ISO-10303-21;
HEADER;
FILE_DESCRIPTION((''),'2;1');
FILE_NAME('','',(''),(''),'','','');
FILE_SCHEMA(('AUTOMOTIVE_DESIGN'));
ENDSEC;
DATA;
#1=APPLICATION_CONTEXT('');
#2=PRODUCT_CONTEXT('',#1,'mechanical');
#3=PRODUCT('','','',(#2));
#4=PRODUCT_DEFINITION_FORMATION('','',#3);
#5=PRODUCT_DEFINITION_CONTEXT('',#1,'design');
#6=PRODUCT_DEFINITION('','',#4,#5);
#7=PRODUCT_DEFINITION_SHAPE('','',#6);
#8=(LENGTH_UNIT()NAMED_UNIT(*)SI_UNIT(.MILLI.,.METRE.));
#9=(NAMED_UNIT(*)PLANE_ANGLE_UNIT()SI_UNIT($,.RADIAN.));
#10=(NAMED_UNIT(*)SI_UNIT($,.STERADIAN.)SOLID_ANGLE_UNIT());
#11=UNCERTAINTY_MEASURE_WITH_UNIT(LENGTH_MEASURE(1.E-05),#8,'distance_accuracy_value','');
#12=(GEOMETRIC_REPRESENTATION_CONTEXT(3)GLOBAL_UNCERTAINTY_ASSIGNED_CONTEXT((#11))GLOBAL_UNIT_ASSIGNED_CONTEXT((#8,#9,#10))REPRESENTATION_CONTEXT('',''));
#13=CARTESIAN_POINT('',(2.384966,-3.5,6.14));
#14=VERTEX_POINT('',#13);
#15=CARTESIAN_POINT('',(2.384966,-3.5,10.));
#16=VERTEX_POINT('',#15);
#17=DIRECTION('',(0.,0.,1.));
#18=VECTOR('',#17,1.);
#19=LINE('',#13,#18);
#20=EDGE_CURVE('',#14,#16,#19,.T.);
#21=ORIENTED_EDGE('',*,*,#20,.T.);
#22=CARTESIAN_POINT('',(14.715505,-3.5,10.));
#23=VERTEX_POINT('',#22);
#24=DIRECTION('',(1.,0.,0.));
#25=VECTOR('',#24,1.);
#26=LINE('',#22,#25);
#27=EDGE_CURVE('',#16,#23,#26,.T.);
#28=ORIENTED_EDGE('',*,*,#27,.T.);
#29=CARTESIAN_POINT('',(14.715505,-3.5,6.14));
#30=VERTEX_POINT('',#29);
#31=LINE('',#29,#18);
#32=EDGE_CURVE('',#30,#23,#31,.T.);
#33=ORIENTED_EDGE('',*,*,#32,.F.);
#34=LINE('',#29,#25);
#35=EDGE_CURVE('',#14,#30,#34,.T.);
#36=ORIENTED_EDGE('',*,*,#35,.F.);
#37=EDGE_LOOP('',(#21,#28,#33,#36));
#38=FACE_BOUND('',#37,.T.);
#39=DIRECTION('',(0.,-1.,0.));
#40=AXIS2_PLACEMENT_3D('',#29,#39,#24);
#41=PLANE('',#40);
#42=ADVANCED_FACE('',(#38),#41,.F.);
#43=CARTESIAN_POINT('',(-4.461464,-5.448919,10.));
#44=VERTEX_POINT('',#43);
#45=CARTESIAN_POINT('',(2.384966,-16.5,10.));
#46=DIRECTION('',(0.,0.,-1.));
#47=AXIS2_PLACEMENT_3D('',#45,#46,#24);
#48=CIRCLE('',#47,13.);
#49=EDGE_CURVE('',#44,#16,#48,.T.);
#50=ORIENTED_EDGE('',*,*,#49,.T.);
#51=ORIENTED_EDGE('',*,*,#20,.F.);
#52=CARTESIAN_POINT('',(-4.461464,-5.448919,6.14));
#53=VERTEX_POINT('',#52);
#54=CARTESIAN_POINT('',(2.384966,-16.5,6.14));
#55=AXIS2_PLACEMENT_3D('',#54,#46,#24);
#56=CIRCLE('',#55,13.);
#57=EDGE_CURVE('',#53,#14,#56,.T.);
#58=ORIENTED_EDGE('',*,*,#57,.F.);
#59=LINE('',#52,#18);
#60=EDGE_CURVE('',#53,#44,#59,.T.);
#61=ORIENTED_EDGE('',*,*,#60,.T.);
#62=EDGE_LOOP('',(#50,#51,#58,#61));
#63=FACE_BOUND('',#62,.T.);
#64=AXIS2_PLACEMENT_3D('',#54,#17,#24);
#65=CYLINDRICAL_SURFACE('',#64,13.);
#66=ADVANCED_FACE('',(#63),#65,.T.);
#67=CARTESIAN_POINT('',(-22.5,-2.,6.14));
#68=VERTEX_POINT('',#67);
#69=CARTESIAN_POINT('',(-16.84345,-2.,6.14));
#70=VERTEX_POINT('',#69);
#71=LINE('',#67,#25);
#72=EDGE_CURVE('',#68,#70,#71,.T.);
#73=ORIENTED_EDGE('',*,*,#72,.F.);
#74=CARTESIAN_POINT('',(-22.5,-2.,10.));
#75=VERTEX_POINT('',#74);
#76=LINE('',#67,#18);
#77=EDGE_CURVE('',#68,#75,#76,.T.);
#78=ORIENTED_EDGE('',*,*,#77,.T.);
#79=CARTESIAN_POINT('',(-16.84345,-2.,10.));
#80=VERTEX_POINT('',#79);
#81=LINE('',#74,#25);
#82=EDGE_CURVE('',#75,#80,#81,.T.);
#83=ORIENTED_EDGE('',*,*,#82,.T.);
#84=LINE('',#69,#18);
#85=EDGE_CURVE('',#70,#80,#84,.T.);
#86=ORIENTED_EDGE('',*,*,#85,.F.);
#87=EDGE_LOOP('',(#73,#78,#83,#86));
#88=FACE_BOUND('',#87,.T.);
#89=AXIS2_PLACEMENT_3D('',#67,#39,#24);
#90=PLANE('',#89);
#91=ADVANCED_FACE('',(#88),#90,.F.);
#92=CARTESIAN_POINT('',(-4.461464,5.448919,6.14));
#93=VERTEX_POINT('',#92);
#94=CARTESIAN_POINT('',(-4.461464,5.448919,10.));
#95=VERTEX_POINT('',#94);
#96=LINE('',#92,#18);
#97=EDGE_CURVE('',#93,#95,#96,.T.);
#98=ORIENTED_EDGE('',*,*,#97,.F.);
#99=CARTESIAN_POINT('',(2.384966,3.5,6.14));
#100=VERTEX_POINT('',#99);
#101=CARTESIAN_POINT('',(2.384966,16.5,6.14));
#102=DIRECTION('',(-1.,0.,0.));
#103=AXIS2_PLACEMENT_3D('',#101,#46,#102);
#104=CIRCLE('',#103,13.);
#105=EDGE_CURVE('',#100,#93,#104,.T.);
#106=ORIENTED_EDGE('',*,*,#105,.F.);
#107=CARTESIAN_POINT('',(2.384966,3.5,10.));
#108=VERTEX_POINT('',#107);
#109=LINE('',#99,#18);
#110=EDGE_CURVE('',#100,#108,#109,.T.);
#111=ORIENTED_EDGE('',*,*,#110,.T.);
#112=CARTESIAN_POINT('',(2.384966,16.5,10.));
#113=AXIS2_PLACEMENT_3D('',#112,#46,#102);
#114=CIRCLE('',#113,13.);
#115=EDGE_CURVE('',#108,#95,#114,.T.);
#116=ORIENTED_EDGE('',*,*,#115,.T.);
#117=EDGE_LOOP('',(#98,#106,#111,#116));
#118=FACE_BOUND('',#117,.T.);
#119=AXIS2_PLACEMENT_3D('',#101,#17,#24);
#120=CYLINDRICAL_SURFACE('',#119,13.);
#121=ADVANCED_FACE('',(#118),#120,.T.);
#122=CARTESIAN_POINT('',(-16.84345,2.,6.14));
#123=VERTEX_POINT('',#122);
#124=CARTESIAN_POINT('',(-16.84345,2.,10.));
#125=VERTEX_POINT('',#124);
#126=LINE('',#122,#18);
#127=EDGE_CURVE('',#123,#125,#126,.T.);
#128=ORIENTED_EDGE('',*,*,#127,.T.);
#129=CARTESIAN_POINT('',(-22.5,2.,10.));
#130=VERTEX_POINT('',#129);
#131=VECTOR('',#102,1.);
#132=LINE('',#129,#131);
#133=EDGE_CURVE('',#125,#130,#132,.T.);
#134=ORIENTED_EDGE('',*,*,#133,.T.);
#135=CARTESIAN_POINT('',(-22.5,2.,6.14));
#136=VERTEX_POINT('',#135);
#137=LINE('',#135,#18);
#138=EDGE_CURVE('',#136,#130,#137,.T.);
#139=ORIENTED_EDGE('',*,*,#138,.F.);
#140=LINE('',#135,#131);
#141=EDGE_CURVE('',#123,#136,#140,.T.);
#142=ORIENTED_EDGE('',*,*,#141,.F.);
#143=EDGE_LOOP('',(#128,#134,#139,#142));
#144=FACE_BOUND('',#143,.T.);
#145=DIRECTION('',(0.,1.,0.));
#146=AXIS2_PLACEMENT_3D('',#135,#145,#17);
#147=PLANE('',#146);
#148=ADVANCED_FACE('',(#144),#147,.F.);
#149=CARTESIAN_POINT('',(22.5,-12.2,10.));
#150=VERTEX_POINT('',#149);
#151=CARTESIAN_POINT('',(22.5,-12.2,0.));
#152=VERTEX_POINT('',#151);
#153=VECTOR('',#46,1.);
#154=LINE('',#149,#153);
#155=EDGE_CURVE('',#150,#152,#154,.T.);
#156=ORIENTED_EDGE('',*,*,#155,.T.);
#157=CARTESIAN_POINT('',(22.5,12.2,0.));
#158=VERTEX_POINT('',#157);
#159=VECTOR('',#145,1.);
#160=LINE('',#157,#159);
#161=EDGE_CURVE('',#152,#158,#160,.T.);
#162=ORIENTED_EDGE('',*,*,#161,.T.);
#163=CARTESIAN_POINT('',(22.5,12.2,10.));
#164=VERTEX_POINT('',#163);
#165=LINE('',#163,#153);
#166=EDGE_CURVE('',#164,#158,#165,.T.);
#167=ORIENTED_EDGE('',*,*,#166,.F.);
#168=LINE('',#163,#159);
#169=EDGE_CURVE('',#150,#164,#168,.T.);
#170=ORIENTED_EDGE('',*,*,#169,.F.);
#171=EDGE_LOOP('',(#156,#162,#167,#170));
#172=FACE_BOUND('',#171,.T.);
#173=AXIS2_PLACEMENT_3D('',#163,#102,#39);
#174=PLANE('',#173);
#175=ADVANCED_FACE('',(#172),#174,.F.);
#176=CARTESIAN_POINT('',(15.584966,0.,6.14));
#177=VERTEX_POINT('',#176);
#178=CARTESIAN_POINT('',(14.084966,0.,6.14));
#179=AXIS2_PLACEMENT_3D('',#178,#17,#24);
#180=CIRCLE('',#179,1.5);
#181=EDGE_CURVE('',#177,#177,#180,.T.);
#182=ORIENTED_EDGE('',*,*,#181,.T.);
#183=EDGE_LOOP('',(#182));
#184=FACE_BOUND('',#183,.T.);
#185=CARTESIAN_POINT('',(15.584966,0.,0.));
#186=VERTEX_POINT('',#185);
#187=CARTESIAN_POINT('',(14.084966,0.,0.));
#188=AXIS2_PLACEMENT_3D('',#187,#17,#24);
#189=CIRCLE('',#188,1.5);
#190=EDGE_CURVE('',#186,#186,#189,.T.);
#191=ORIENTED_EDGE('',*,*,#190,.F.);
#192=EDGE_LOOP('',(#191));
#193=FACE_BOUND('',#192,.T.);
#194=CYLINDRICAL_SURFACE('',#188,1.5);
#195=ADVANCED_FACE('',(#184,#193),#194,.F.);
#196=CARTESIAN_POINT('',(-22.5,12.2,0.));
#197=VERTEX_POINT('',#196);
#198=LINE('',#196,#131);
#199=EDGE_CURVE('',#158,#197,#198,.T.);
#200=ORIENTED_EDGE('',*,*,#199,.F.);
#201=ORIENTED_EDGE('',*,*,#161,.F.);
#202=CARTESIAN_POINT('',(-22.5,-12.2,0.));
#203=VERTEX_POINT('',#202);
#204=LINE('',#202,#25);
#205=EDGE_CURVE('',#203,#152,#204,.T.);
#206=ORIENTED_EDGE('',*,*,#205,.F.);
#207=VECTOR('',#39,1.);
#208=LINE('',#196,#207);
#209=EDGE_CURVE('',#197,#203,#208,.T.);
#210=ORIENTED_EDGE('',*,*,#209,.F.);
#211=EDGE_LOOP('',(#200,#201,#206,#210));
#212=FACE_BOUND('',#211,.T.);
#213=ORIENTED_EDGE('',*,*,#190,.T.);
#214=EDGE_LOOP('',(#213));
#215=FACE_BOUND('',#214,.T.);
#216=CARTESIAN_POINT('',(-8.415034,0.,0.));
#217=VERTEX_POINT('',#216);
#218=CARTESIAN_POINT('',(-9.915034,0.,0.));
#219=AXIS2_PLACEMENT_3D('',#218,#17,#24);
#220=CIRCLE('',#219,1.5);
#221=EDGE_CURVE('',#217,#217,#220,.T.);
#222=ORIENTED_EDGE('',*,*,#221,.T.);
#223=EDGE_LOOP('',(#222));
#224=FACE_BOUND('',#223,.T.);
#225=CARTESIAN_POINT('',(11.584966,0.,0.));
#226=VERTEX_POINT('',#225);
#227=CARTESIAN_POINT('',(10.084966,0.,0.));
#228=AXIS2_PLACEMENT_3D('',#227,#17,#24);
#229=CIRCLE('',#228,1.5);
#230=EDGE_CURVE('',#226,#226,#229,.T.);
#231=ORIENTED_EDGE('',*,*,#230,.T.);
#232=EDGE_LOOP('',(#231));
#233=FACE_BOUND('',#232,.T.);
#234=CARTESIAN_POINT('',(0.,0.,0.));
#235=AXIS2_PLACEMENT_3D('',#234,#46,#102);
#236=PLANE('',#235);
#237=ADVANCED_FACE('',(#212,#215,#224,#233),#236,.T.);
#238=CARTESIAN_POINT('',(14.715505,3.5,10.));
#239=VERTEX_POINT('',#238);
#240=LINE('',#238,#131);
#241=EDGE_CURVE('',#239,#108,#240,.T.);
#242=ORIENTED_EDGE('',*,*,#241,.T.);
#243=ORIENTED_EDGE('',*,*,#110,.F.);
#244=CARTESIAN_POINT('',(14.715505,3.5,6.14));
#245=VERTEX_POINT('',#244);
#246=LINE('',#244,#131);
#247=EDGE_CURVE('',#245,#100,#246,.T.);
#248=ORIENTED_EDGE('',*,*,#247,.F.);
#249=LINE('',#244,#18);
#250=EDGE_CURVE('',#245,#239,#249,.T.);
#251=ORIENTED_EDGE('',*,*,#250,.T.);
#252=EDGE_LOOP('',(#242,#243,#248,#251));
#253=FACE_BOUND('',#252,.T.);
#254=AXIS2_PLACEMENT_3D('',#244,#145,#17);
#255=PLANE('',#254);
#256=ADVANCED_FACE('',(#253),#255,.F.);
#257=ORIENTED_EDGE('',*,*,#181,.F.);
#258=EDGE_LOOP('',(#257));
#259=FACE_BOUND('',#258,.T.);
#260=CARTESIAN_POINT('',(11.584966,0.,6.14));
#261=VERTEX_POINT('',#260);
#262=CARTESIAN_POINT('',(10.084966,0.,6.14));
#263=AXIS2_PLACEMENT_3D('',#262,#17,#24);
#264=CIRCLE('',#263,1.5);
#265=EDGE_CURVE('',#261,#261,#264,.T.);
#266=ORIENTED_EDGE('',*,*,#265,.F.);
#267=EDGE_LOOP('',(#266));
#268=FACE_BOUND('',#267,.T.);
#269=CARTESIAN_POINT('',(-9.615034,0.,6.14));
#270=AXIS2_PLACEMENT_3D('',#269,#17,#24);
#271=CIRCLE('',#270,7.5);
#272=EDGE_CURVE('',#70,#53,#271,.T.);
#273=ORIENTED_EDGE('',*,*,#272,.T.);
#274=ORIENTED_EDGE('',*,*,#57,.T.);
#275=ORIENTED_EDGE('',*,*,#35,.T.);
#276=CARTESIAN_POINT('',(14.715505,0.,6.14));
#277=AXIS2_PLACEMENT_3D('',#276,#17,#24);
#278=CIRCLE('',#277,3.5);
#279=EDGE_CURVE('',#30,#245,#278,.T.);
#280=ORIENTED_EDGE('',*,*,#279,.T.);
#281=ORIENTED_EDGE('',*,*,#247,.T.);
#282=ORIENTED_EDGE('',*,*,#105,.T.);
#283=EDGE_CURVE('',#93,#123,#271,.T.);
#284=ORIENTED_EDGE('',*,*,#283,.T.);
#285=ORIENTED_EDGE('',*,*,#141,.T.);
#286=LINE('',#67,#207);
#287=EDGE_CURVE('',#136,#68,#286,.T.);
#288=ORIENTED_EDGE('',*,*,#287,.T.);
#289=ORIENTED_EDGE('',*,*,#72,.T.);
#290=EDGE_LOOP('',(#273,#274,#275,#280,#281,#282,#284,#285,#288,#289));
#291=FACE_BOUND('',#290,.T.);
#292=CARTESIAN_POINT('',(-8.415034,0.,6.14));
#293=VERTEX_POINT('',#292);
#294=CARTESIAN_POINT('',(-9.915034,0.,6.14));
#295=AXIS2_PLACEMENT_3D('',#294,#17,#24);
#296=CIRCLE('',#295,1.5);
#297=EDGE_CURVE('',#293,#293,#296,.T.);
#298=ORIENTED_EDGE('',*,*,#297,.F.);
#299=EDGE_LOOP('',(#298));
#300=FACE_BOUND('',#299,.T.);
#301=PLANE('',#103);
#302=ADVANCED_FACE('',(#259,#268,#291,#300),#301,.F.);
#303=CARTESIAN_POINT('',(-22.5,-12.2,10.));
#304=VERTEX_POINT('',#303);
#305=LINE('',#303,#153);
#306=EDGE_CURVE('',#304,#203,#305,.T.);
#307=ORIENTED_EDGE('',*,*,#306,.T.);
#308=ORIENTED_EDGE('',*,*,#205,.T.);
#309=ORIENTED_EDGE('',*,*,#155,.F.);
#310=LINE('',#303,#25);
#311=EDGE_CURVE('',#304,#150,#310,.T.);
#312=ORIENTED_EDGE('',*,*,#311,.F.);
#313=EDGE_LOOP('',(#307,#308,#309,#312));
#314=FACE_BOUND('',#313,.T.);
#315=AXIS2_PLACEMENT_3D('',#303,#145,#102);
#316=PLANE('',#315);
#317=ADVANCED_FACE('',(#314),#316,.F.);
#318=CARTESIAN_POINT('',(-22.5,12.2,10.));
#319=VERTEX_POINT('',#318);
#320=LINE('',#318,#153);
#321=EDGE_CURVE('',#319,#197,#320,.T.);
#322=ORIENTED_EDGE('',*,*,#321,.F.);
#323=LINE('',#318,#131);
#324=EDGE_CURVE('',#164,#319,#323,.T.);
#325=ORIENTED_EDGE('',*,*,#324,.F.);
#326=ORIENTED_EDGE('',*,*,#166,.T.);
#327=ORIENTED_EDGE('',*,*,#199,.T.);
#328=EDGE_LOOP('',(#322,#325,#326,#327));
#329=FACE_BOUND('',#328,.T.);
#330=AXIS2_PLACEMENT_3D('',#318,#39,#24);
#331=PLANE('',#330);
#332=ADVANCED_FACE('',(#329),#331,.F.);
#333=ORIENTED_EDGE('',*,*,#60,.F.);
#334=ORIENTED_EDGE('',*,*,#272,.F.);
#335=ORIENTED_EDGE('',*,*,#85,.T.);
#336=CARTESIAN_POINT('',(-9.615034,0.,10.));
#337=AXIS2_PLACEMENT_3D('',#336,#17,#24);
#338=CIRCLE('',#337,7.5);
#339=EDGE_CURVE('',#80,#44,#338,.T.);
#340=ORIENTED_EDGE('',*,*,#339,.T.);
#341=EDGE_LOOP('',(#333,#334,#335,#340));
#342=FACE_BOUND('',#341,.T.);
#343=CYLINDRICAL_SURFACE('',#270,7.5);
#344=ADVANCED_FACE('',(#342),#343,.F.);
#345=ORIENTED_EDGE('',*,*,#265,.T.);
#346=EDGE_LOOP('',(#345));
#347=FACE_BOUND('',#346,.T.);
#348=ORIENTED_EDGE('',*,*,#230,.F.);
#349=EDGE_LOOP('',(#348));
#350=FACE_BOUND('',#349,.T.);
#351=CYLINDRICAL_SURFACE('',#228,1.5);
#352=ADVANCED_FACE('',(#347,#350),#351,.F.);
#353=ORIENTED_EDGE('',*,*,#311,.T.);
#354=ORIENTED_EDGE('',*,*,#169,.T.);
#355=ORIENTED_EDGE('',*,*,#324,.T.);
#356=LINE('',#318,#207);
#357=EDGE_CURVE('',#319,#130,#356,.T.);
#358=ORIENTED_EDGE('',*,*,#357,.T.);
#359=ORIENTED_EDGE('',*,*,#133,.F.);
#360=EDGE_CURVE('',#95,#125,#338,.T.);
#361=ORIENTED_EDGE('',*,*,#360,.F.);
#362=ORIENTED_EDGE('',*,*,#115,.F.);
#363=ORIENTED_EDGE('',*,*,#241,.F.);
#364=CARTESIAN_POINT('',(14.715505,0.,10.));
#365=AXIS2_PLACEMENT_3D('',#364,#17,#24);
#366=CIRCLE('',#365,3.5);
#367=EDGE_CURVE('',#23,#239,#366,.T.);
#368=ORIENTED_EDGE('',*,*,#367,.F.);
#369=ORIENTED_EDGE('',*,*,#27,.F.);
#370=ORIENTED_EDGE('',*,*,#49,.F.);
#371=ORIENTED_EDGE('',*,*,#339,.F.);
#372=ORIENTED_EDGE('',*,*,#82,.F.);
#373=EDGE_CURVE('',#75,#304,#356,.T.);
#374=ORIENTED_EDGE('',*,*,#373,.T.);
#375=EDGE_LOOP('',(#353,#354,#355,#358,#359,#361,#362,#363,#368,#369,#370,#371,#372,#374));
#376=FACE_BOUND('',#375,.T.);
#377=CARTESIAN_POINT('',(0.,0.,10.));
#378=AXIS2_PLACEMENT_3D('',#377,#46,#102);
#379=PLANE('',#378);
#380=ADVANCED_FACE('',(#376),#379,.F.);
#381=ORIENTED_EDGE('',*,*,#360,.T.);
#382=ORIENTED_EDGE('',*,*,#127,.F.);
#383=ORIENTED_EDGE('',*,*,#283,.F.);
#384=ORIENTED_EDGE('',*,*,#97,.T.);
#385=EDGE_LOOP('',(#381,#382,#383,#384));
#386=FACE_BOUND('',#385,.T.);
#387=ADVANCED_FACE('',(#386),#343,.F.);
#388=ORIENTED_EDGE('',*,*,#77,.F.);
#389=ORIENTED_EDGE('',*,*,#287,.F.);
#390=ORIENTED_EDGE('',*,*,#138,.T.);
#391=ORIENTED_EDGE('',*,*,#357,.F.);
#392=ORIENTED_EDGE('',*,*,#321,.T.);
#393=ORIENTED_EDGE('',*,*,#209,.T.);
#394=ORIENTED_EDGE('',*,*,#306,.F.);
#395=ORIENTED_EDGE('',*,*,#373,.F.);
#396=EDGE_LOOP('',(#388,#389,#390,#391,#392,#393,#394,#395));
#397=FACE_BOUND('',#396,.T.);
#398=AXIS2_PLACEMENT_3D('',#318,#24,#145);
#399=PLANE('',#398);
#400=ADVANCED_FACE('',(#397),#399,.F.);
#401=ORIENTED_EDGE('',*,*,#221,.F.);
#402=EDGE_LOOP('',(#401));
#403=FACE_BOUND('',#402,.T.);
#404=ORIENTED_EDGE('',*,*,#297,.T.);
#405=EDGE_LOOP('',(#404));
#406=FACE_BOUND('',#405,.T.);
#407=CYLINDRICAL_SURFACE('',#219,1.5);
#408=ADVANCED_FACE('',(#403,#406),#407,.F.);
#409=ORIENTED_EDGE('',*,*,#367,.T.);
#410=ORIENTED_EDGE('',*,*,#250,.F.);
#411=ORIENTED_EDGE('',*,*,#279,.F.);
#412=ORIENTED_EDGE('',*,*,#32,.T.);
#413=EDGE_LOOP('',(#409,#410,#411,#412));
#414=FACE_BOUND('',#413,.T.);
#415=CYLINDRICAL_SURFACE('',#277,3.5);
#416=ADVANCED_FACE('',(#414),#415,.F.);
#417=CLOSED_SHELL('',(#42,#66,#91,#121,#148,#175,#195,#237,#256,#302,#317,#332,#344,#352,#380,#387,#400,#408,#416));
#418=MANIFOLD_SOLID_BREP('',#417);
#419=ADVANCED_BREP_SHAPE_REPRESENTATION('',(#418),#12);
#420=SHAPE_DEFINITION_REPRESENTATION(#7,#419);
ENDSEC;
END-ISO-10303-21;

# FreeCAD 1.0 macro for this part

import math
import FreeCAD as App
import Part
import Sketcher
Q = App.Units.Quantity


def add_polygon(sketch, points):
    """Adds a closed chain of lines whose ends are joined by coincident constraints."""
    first, n = sketch.GeometryCount, len(points)
    for a, b in zip(points, points[1:] + points[:1]):
        sketch.addGeometry(Part.LineSegment(App.Vector(*a, 0), App.Vector(*b, 0)), False)
    for i in range(n):
        sketch.addConstraint(Sketcher.Constraint("Coincident", first + i, 2, first + (i + 1) % n, 1))

doc = App.newDocument("Part")
body = doc.addObject("PartDesign::Body", "Body")

# Sketch on XY plane
sketch1 = body.newObject("Sketcher::SketchObject", "Sketch")
sketch1.AttachmentSupport = (doc.getObject("XY_Plane"), [""])
sketch1.MapMode = "FlatFace"
add_polygon(sketch1, [(-22, -12), (22, -12), (22, 12), (-22, 12)])  # lines 0-3
sketch1.addConstraint(Sketcher.Constraint("Horizontal", 0))
sketch1.addConstraint(Sketcher.Constraint("Vertical", 1))
sketch1.addConstraint(Sketcher.Constraint("Horizontal", 2))
sketch1.addConstraint(Sketcher.Constraint("Vertical", 3))
sketch1.addConstraint(Sketcher.Constraint("Symmetric", 0, 2, 2, 2, -1, 1))
sketch1.addConstraint(Sketcher.Constraint("DistanceX", 0, 1, 0, 2, Q("45 mm")))
sketch1.addConstraint(Sketcher.Constraint("DistanceY", 1, 1, 1, 2, Q("24.4 mm")))
pad1 = body.newObject("PartDesign::Pad", "Pad")
pad1.Profile = sketch1
pad1.Length = 10

# Sketch on XY plane
sketch2 = body.newObject("Sketcher::SketchObject", "Sketch001")
sketch2.AttachmentSupport = (doc.getObject("XY_Plane"), [""])
sketch2.MapMode = "FlatFace"
sketch2.AttachmentOffset = App.Placement(App.Vector(0, 0, 10), App.Rotation())
sketch2.addGeometry(Part.LineSegment(App.Vector(14.7, 3.5, 0), App.Vector(2.4, 3.5, 0)), False)
sketch2.addGeometry(Part.ArcOfCircle(Part.Circle(App.Vector(2.4, 16.5, 0), App.Vector(0, 0, 1), 13), math.radians(-122), math.radians(-90)), False)
sketch2.addGeometry(Part.ArcOfCircle(Part.Circle(App.Vector(-9.6, 0, 0), App.Vector(0, 0, 1), 7.5), math.radians(47), math.radians(313)), False)
sketch2.addGeometry(Part.ArcOfCircle(Part.Circle(App.Vector(2.4, -16.5, 0), App.Vector(0, 0, 1), 13), math.radians(90), math.radians(122)), False)
sketch2.addGeometry(Part.LineSegment(App.Vector(2.4, -3.5, 0), App.Vector(14.7, -3.5, 0)), False)
sketch2.addGeometry(Part.ArcOfCircle(Part.Circle(App.Vector(14.7, 0, 0), App.Vector(0, 0, 1), 3.5), math.radians(-90), math.radians(90)), False)
sketch2.addConstraint(Sketcher.Constraint("Tangent", 0, 2, 1, 2))
sketch2.addConstraint(Sketcher.Constraint("Coincident", 1, 1, 2, 1))
sketch2.addConstraint(Sketcher.Constraint("Coincident", 2, 2, 3, 2))
sketch2.addConstraint(Sketcher.Constraint("Tangent", 3, 1, 4, 1))
sketch2.addConstraint(Sketcher.Constraint("Tangent", 4, 2, 5, 1))
sketch2.addConstraint(Sketcher.Constraint("Tangent", 5, 2, 0, 1))
sketch2.addConstraint(Sketcher.Constraint("Horizontal", 0))
sketch2.addConstraint(Sketcher.Constraint("Horizontal", 4))
sketch2.addConstraint(Sketcher.Constraint("Equal", 1, 3))
sketch2.addConstraint(Sketcher.Constraint("Symmetric", 1, 3, 3, 3, -1))
sketch2.addConstraint(Sketcher.Constraint("PointOnObject", 2, 3, -1))
sketch2.addConstraint(Sketcher.Constraint("Radius", 1, Q("13 mm")))
sketch2.addConstraint(Sketcher.Constraint("Radius", 2, Q("7.5 mm")))
sketch2.addConstraint(Sketcher.Constraint("Radius", 5, Q("3.5 mm")))
sketch2.addConstraint(Sketcher.Constraint("DistanceX", 2, 3, 1, 3, Q("12 mm")))
sketch2.addConstraint(Sketcher.Constraint("DistanceX", 0, 2, 0, 1, Q("12.330539 mm")))
sketch2.addConstraint(Sketcher.Constraint("DistanceX", -1, 1, 1, 3, Q("2.384966 mm")))
pocket1 = body.newObject("PartDesign::Pocket", "Pocket")
pocket1.Profile = sketch2
pocket1.Length = 3.86

# Sketch on XY plane
sketch3 = body.newObject("Sketcher::SketchObject", "Sketch002")
sketch3.AttachmentSupport = (doc.getObject("XY_Plane"), [""])
sketch3.MapMode = "FlatFace"
sketch3.AttachmentOffset = App.Placement(App.Vector(0, 0, 6.14), App.Rotation())
sketch3.addGeometry(Part.Circle(App.Vector(10.1, 0, 0), App.Vector(0, 0, 1), 1.5), False)
sketch3.addGeometry(Part.Circle(App.Vector(14.1, 0, 0), App.Vector(0, 0, 1), 1.5), False)
sketch3.addGeometry(Part.Circle(App.Vector(-9.9, 0, 0), App.Vector(0, 0, 1), 1.5), False)
sketch3.addConstraint(Sketcher.Constraint("Equal", 0, 1))
sketch3.addConstraint(Sketcher.Constraint("Equal", 1, 2))
sketch3.addConstraint(Sketcher.Constraint("PointOnObject", 0, 3, -1))
sketch3.addConstraint(Sketcher.Constraint("PointOnObject", 1, 3, -1))
sketch3.addConstraint(Sketcher.Constraint("PointOnObject", 2, 3, -1))
sketch3.addConstraint(Sketcher.Constraint("Diameter", 0, Q("3 mm")))
sketch3.addConstraint(Sketcher.Constraint("DistanceX", 0, 3, 1, 3, Q("4 mm")))
sketch3.addConstraint(Sketcher.Constraint("DistanceX", 2, 3, 0, 3, Q("20 mm")))
sketch3.addConstraint(Sketcher.Constraint("DistanceX", -1, 1, 0, 3, Q("10.084966 mm")))
pocket2 = body.newObject("PartDesign::Pocket", "Pocket001")
pocket2.Profile = sketch3
pocket2.Type = "ThroughAll"

# Sketch on XY plane
sketch4 = body.newObject("Sketcher::SketchObject", "Sketch003")
sketch4.AttachmentSupport = (doc.getObject("XY_Plane"), [""])
sketch4.MapMode = "FlatFace"
sketch4.AttachmentOffset = App.Placement(App.Vector(0, 0, 10), App.Rotation())
sketch4.addGeometry(Part.LineSegment(App.Vector(-16.8, 2, 0), App.Vector(-22.5, 2, 0)), False)
sketch4.addGeometry(Part.LineSegment(App.Vector(-22.5, 2, 0), App.Vector(-22.5, -2, 0)), False)
sketch4.addGeometry(Part.LineSegment(App.Vector(-22.5, -2, 0), App.Vector(-16.8, -2, 0)), False)
sketch4.addGeometry(Part.ArcOfCircle(Part.Circle(App.Vector(-9.6, 0, 0), App.Vector(0, 0, 1), 7.5), math.radians(165), math.radians(195)), False)
sketch4.addConstraint(Sketcher.Constraint("Coincident", 0, 2, 1, 1))
sketch4.addConstraint(Sketcher.Constraint("Coincident", 1, 2, 2, 1))
sketch4.addConstraint(Sketcher.Constraint("Coincident", 2, 2, 3, 2))
sketch4.addConstraint(Sketcher.Constraint("Coincident", 3, 1, 0, 1))
sketch4.addConstraint(Sketcher.Constraint("Horizontal", 0))
sketch4.addConstraint(Sketcher.Constraint("Vertical", 1))
sketch4.addConstraint(Sketcher.Constraint("Horizontal", 2))
sketch4.addConstraint(Sketcher.Constraint("Symmetric", 2, 2, 3, 1, -1))
sketch4.addConstraint(Sketcher.Constraint("Radius", 3, Q("7.5 mm")))
sketch4.addConstraint(Sketcher.Constraint("DistanceY", 1, 2, 1, 1, Q("4 mm")))
sketch4.addConstraint(Sketcher.Constraint("DistanceX", 0, 2, -1, 1, Q("22.5 mm")))
sketch4.addConstraint(Sketcher.Constraint("DistanceX", 0, 2, 0, 1, Q("5.65655 mm")))
pocket3 = body.newObject("PartDesign::Pocket", "Pocket002")
pocket3.Profile = sketch4
pocket3.Length = 3.86

doc.recompute()
